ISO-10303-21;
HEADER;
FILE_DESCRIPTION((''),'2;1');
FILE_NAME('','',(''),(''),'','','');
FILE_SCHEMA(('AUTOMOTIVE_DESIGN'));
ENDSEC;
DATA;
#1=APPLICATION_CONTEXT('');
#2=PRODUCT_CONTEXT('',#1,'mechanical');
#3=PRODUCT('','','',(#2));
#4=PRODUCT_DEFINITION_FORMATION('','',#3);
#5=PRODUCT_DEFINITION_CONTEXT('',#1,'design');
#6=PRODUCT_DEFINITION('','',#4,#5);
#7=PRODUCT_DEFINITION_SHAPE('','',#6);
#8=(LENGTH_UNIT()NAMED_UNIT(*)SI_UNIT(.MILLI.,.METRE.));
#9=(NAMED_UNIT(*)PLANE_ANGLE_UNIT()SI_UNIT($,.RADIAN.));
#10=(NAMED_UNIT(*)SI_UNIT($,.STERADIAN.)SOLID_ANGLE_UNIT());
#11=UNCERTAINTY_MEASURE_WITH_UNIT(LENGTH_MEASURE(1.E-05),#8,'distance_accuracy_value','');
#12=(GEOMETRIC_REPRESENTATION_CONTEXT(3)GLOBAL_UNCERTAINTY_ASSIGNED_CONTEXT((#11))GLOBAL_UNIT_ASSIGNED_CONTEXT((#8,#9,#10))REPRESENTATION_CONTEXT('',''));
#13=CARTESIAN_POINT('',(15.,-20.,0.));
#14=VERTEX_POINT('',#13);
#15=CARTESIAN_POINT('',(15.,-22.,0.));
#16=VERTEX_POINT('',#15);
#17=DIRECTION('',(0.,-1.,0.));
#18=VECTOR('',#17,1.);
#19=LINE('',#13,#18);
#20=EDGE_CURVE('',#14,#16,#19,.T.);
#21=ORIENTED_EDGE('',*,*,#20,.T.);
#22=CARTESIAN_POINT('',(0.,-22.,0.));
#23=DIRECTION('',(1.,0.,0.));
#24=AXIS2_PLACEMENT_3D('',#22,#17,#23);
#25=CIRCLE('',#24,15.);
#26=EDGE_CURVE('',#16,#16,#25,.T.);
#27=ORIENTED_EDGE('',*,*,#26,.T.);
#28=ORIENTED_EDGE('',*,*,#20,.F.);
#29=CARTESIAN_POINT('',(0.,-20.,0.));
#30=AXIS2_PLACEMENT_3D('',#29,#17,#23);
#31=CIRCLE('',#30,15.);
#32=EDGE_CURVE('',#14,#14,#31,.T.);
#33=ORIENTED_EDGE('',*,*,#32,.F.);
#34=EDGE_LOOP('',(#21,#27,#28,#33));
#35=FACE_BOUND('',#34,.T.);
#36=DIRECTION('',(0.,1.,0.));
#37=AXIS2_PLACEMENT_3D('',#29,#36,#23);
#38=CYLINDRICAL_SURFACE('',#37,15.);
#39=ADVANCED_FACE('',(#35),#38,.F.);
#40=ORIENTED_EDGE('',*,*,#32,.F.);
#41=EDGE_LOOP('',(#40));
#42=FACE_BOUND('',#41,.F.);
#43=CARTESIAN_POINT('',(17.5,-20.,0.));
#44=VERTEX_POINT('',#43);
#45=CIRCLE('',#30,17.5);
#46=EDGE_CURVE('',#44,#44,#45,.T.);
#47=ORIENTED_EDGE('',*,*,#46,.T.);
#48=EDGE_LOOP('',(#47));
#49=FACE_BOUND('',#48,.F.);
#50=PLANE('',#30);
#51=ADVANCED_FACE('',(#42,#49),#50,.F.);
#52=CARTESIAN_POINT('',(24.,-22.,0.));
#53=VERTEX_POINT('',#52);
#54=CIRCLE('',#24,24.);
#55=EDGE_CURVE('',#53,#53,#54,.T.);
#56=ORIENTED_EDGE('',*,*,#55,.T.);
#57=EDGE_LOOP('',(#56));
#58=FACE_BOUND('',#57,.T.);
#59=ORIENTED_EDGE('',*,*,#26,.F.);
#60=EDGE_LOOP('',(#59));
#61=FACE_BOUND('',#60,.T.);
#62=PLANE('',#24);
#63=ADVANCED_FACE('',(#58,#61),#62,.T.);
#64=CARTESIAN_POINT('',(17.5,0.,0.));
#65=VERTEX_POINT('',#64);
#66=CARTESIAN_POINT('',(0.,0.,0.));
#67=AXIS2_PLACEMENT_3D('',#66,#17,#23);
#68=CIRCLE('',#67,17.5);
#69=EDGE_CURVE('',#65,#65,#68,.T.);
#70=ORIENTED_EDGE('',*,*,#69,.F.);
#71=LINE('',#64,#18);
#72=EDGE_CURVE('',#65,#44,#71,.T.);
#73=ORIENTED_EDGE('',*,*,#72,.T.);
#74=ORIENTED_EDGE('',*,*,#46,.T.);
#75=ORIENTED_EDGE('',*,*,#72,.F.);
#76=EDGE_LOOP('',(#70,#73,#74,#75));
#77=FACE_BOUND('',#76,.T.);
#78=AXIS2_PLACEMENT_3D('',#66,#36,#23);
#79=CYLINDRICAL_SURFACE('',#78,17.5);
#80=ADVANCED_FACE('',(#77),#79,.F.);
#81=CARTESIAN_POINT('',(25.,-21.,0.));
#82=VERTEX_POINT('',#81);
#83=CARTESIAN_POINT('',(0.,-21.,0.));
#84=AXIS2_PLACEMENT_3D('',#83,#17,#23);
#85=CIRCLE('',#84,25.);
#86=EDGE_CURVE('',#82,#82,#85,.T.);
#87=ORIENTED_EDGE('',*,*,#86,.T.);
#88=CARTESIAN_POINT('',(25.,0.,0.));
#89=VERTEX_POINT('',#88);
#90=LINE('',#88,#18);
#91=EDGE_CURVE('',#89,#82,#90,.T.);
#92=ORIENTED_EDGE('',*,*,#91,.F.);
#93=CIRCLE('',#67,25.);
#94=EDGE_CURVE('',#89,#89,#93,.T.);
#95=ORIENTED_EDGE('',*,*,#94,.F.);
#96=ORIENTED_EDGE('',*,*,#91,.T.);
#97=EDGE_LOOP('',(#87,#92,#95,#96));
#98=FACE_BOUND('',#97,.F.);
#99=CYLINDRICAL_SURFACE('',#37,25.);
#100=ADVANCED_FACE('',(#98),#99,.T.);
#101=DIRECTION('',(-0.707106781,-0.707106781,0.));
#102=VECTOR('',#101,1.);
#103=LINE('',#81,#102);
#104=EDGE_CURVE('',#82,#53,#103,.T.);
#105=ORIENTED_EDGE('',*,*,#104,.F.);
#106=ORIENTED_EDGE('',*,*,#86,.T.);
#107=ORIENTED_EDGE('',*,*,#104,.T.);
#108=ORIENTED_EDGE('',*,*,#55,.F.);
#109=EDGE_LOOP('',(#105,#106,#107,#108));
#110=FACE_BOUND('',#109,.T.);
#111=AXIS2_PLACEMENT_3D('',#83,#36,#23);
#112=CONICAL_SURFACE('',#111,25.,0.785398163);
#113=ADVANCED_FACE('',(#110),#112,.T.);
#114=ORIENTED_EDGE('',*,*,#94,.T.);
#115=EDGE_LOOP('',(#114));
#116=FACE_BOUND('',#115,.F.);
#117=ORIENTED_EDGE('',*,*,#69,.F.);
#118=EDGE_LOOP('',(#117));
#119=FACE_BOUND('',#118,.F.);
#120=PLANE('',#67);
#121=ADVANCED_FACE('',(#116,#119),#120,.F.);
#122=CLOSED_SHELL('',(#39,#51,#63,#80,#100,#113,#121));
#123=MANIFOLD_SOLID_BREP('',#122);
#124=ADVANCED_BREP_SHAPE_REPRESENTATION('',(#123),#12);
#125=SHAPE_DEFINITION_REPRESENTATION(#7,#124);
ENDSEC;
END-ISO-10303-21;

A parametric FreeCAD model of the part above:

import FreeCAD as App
import Part
import Sketcher

V = App.Vector
Q = App.Units.Quantity


def edges_at(feature, points):
    """Names of the edges that pass closest to the given points."""
    edges = feature.Shape.Edges
    near = lambda p: min(range(len(edges)), key=lambda i: edges[i].distToShape(Part.Vertex(*p))[0])
    return sorted({f"Edge{near(p) + 1}" for p in points})

doc = App.newDocument("Part")
body = doc.addObject("PartDesign::Body", "Body")

# Sketch on XZ plane
sketch1 = doc.addObject("Sketcher::SketchObject", "Sketch")
body.addObject(sketch1)
sketch1.AttachmentSupport = (doc.XZ_Plane, [""])
sketch1.MapMode = "FlatFace"
sketch1.addGeometry(Part.Circle(V(0, 0, 0), V(0, 0, 1), 25), False)
sketch1.addGeometry(Part.Circle(V(0, 0, 0), V(0, 0, 1), 18), False)
sketch1.addConstraint(Sketcher.Constraint("Coincident", 0, 3, -1, 1))
sketch1.addConstraint(Sketcher.Constraint("Coincident", 1, 3, -1, 1))
sketch1.addConstraint(Sketcher.Constraint("Diameter", 0, Q("50 mm")))
sketch1.addConstraint(Sketcher.Constraint("Diameter", 1, Q("35 mm")))
pad1 = doc.addObject("PartDesign::Pad", "Pad")
body.addObject(pad1)
pad1.Profile = sketch1
pad1.Length = 20

# Sketch on XZ plane
sketch2 = doc.addObject("Sketcher::SketchObject", "Sketch001")
body.addObject(sketch2)
sketch2.AttachmentSupport = (doc.XZ_Plane, [""])
sketch2.MapMode = "FlatFace"
sketch2.AttachmentOffset = App.Placement(V(0, 0, 20), App.Rotation())
sketch2.addGeometry(Part.Circle(V(0, 0, 0), V(0, 0, 1), 25), False)
sketch2.addGeometry(Part.Circle(V(0, 0, 0), V(0, 0, 1), 15), False)
sketch2.addConstraint(Sketcher.Constraint("Coincident", 0, 3, -1, 1))
sketch2.addConstraint(Sketcher.Constraint("Coincident", 1, 3, -1, 1))
sketch2.addConstraint(Sketcher.Constraint("Diameter", 0, Q("50 mm")))
sketch2.addConstraint(Sketcher.Constraint("Diameter", 1, Q("30 mm")))
pad2 = doc.addObject("PartDesign::Pad", "Pad001")
body.addObject(pad2)
pad2.Profile = sketch2
pad2.Length = 2
doc.recompute()

chamfer = doc.addObject("PartDesign::Chamfer", "Chamfer")
body.addObject(chamfer)
chamfer.Base = (pad2, edges_at(pad2, [(-25, -22, 0)]))
chamfer.Size = 1

doc.recompute()
